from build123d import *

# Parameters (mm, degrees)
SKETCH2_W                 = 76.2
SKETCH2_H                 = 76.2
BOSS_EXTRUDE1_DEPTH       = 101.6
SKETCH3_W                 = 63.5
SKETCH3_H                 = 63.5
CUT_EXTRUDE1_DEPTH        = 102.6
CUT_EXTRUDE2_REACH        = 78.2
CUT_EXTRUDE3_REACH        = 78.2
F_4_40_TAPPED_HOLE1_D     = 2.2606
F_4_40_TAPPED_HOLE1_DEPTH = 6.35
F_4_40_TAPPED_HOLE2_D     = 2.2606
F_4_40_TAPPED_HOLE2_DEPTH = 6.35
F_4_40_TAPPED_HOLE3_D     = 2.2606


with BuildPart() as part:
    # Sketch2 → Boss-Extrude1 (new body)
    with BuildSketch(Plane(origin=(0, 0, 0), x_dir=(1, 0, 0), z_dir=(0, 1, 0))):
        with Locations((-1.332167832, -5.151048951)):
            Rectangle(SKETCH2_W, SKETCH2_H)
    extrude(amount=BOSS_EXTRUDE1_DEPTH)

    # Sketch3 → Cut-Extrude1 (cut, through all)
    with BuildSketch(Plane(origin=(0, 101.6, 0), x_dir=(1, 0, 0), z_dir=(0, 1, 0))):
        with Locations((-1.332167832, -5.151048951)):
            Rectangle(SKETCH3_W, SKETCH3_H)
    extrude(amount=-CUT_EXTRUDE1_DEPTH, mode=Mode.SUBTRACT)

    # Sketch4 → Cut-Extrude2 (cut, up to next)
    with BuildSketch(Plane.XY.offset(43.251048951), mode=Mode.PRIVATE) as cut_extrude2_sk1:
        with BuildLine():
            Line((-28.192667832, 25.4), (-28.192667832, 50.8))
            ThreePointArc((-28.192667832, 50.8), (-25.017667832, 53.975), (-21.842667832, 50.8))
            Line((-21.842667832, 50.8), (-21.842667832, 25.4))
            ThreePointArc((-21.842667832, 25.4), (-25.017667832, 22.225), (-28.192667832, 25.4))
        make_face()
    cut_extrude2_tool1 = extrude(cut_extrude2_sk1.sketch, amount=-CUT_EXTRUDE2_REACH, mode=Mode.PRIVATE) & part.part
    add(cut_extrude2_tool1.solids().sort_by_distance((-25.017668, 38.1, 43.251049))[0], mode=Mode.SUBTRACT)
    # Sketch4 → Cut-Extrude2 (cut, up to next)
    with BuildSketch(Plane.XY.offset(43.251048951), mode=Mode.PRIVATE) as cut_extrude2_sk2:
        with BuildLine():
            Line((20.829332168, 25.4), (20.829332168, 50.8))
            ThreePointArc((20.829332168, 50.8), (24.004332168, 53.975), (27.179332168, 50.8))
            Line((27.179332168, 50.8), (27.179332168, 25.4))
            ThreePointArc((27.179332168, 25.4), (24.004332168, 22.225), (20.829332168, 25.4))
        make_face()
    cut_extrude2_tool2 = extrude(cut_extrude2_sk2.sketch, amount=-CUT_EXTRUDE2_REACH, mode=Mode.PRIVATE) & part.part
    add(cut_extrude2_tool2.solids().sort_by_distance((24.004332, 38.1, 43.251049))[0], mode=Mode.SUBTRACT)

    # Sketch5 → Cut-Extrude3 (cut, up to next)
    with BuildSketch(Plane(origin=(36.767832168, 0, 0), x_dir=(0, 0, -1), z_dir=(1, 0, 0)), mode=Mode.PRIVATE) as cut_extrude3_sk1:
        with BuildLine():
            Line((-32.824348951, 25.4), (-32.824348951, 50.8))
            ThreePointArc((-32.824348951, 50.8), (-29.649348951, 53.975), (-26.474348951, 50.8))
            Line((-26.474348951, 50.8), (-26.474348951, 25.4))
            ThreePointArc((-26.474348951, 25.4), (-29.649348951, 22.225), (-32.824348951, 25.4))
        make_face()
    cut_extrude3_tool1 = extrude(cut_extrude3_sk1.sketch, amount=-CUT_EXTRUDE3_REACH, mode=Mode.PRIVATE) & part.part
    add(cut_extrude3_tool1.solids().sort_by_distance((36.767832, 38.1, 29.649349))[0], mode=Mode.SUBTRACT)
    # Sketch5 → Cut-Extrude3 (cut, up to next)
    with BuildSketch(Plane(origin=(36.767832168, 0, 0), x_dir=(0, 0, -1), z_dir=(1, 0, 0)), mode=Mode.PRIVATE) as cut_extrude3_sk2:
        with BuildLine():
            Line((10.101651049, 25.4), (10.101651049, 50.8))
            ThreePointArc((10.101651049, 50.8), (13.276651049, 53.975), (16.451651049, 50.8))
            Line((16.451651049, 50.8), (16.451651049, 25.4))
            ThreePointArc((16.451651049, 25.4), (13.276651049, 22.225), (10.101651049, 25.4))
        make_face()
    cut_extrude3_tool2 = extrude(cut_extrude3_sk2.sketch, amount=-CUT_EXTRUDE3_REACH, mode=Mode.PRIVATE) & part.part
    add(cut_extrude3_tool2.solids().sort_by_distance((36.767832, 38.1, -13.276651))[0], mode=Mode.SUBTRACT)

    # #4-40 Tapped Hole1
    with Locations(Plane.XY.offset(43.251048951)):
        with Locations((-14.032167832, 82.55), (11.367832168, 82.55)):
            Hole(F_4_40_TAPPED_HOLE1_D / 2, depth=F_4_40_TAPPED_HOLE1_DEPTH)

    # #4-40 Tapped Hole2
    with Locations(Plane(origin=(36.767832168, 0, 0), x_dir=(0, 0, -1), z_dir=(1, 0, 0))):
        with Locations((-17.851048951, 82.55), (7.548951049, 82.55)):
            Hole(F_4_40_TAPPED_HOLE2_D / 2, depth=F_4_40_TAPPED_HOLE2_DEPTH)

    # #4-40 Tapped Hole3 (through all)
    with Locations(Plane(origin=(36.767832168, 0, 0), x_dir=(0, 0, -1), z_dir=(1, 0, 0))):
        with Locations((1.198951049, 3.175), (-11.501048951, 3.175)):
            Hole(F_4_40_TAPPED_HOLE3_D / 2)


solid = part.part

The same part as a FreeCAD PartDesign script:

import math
import FreeCAD as App
import Part
import Sketcher
Q = App.Units.Quantity

doc = App.newDocument("Part")
body = doc.addObject("PartDesign::Body", "Body")

# Sketch on XZ plane
sketch1 = body.newObject("Sketcher::SketchObject", "Sketch")
sketch1.AttachmentSupport = (doc.getObject("XZ_Plane"), [""])
sketch1.MapMode = "FlatFace"
sketch1.addGeometry([
    Part.LineSegment(App.Vector(-39, -33, 0), App.Vector(-39, 43, 0)),
    Part.LineSegment(App.Vector(-39, 43, 0), App.Vector(37, 43, 0)),
    Part.LineSegment(App.Vector(37, 43, 0), App.Vector(37, -33, 0)),
    Part.LineSegment(App.Vector(37, -33, 0), App.Vector(-39, -33, 0)),
], False)
sketch1.addConstraint([
    Sketcher.Constraint("Coincident", 0, 2, 1, 1),
    Sketcher.Constraint("Coincident", 1, 2, 2, 1),
    Sketcher.Constraint("Coincident", 2, 2, 3, 1),
    Sketcher.Constraint("Coincident", 3, 2, 0, 1),
    Sketcher.Constraint("Vertical", 0),
    Sketcher.Constraint("Horizontal", 1),
    Sketcher.Constraint("Vertical", 2),
    Sketcher.Constraint("Horizontal", 3),
    Sketcher.Constraint("Equal", 3, 0),
    Sketcher.Constraint("DistanceX", 1, 1, 1, 2, Q("3 in")),
    Sketcher.Constraint("DistanceY", -1, 1, 0, 2, Q("43.251049 mm")),
    Sketcher.Constraint("DistanceX", 0, 2, -1, 1, Q("39.432168 mm")),
])
pad1 = body.newObject("PartDesign::Pad", "Pad")
pad1.Profile = sketch1
pad1.Length = Q("4 in")
pad1.Reversed = True

# Sketch on XZ plane
sketch2 = body.newObject("Sketcher::SketchObject", "Sketch001")
sketch2.AttachmentSupport = (doc.getObject("XZ_Plane"), [""])
sketch2.MapMode = "FlatFace"
sketch2.AttachmentOffset = App.Placement(App.Vector(0, 0, -4 * 25.4), App.Rotation())
sketch2.addGeometry([
    Part.LineSegment(App.Vector(-33, -27, 0), App.Vector(-33, 37, 0)),
    Part.LineSegment(App.Vector(-33, 37, 0), App.Vector(30, 37, 0)),
    Part.LineSegment(App.Vector(30, 37, 0), App.Vector(30, -27, 0)),
    Part.LineSegment(App.Vector(30, -27, 0), App.Vector(-33, -27, 0)),
], False)
sketch2.addConstraint([
    Sketcher.Constraint("Coincident", 0, 2, 1, 1),
    Sketcher.Constraint("Coincident", 1, 2, 2, 1),
    Sketcher.Constraint("Coincident", 2, 2, 3, 1),
    Sketcher.Constraint("Coincident", 3, 2, 0, 1),
    Sketcher.Constraint("Vertical", 0),
    Sketcher.Constraint("Horizontal", 1),
    Sketcher.Constraint("Vertical", 2),
    Sketcher.Constraint("Horizontal", 3),
    Sketcher.Constraint("Equal", 3, 0),
    Sketcher.Constraint("DistanceX", 1, 1, 1, 2, Q("2.5 in")),
    Sketcher.Constraint("DistanceY", -1, 1, 0, 2, Q("36.901049 mm")),
    Sketcher.Constraint("DistanceX", 0, 2, -1, 1, Q("33.082168 mm")),
])
pocket1 = body.newObject("PartDesign::Pocket", "Pocket")
pocket1.Profile = sketch2
pocket1.Type = "ThroughAll"
pocket1.Reversed = True

# Sketch on XY plane
sketch3 = body.newObject("Sketcher::SketchObject", "Sketch002")
sketch3.AttachmentSupport = (doc.getObject("XY_Plane"), [""])
sketch3.MapMode = "FlatFace"
sketch3.AttachmentOffset = App.Placement(App.Vector(0, 0, 43.251049), App.Rotation())
sketch3.addGeometry([
    Part.LineSegment(App.Vector(-28.2, 50.8, 0), App.Vector(-28.2, 25.4, 0)),
    Part.ArcOfCircle(Part.Circle(App.Vector(-25, 25.4, 0), App.Vector(0, 0, 1), 3.2), math.radians(180), math.radians(360)),
    Part.LineSegment(App.Vector(-21.8, 25.4, 0), App.Vector(-21.8, 50.8, 0)),
    Part.ArcOfCircle(Part.Circle(App.Vector(-25, 50.8, 0), App.Vector(0, 0, 1), 3.2), math.radians(0), math.radians(180)),
], False)
sketch3.addConstraint([
    Sketcher.Constraint("Tangent", 0, 2, 1, 1),
    Sketcher.Constraint("Tangent", 1, 2, 2, 1),
    Sketcher.Constraint("Tangent", 2, 2, 3, 1),
    Sketcher.Constraint("Tangent", 3, 2, 0, 1),
    Sketcher.Constraint("Vertical", 0),
    Sketcher.Constraint("Vertical", 2),
    Sketcher.Constraint("DistanceY", 0, 2, 0, 1, Q("1 in")),
    Sketcher.Constraint("DistanceY", -1, 1, 1, 3, Q("1 in")),
    Sketcher.Constraint("Radius", 1, Q("0.125 in")),
    Sketcher.Constraint("DistanceX", 1, 3, -1, 1, Q("25.017668 mm")),
])
pocket2 = body.newObject("PartDesign::Pocket", "Pocket001")
pocket2.Profile = sketch3
pocket2.Type = "UpToFirst"

# Sketch on XY plane
sketch4 = body.newObject("Sketcher::SketchObject", "Sketch003")
sketch4.AttachmentSupport = (doc.getObject("XY_Plane"), [""])
sketch4.MapMode = "FlatFace"
sketch4.AttachmentOffset = App.Placement(App.Vector(0, 0, 43.251049), App.Rotation())
sketch4.addGeometry([
    Part.LineSegment(App.Vector(20.8, 50.8, 0), App.Vector(20.8, 25.4, 0)),
    Part.ArcOfCircle(Part.Circle(App.Vector(24, 25.4, 0), App.Vector(0, 0, 1), 3.2), math.radians(180), math.radians(360)),
    Part.LineSegment(App.Vector(27.2, 25.4, 0), App.Vector(27.2, 50.8, 0)),
    Part.ArcOfCircle(Part.Circle(App.Vector(24, 50.8, 0), App.Vector(0, 0, 1), 3.2), math.radians(0), math.radians(180)),
], False)
sketch4.addConstraint([
    Sketcher.Constraint("Tangent", 0, 2, 1, 1),
    Sketcher.Constraint("Tangent", 1, 2, 2, 1),
    Sketcher.Constraint("Tangent", 2, 2, 3, 1),
    Sketcher.Constraint("Tangent", 3, 2, 0, 1),
    Sketcher.Constraint("Vertical", 0),
    Sketcher.Constraint("Vertical", 2),
    Sketcher.Constraint("DistanceY", 0, 2, 0, 1, Q("1 in")),
    Sketcher.Constraint("DistanceY", -1, 1, 1, 3, Q("1 in")),
    Sketcher.Constraint("Radius", 1, Q("0.125 in")),
    Sketcher.Constraint("DistanceX", -1, 1, 1, 3, Q("24.004332 mm")),
])
pocket3 = body.newObject("PartDesign::Pocket", "Pocket002")
pocket3.Profile = sketch4
pocket3.Type = "UpToFirst"

# Sketch on YZ plane
sketch5 = body.newObject("Sketcher::SketchObject", "Sketch004")
sketch5.AttachmentSupport = (doc.getObject("YZ_Plane"), [""])
sketch5.MapMode = "FlatFace"
sketch5.AttachmentOffset = App.Placement(App.Vector(0, 0, 36.767832), App.Rotation())
sketch5.addGeometry([
    Part.LineSegment(App.Vector(50.8, 32.8, 0), App.Vector(25.4, 32.8, 0)),
    Part.ArcOfCircle(Part.Circle(App.Vector(25.4, 29.6, 0), App.Vector(0, 0, 1), 3.2), math.radians(90), math.radians(270)),
    Part.LineSegment(App.Vector(25.4, 26.5, 0), App.Vector(50.8, 26.5, 0)),
    Part.ArcOfCircle(Part.Circle(App.Vector(50.8, 29.6, 0), App.Vector(0, 0, 1), 3.2), math.radians(-90), math.radians(90)),
], False)
sketch5.addConstraint([
    Sketcher.Constraint("Tangent", 0, 2, 1, 1),
    Sketcher.Constraint("Tangent", 1, 2, 2, 1),
    Sketcher.Constraint("Tangent", 2, 2, 3, 1),
    Sketcher.Constraint("Tangent", 3, 2, 0, 1),
    Sketcher.Constraint("Horizontal", 0),
    Sketcher.Constraint("Horizontal", 2),
    Sketcher.Constraint("DistanceX", 0, 2, 0, 1, Q("1 in")),
    Sketcher.Constraint("DistanceX", -1, 1, 1, 3, Q("1 in")),
    Sketcher.Constraint("Radius", 1, Q("0.125 in")),
    Sketcher.Constraint("DistanceY", -1, 1, 1, 3, Q("29.649349 mm")),
])
pocket4 = body.newObject("PartDesign::Pocket", "Pocket003")
pocket4.Profile = sketch5
pocket4.Type = "UpToFirst"

# Sketch on YZ plane
sketch6 = body.newObject("Sketcher::SketchObject", "Sketch005")
sketch6.AttachmentSupport = (doc.getObject("YZ_Plane"), [""])
sketch6.MapMode = "FlatFace"
sketch6.AttachmentOffset = App.Placement(App.Vector(0, 0, 36.767832), App.Rotation())
sketch6.addGeometry([
    Part.LineSegment(App.Vector(50.8, -10.1, 0), App.Vector(25.4, -10.1, 0)),
    Part.ArcOfCircle(Part.Circle(App.Vector(25.4, -13.3, 0), App.Vector(0, 0, 1), 3.2), math.radians(90), math.radians(270)),
    Part.LineSegment(App.Vector(25.4, -16.5, 0), App.Vector(50.8, -16.5, 0)),
    Part.ArcOfCircle(Part.Circle(App.Vector(50.8, -13.3, 0), App.Vector(0, 0, 1), 3.2), math.radians(-90), math.radians(90)),
], False)
sketch6.addConstraint([
    Sketcher.Constraint("Tangent", 0, 2, 1, 1),
    Sketcher.Constraint("Tangent", 1, 2, 2, 1),
    Sketcher.Constraint("Tangent", 2, 2, 3, 1),
    Sketcher.Constraint("Tangent", 3, 2, 0, 1),
    Sketcher.Constraint("Horizontal", 0),
    Sketcher.Constraint("Horizontal", 2),
    Sketcher.Constraint("DistanceX", 0, 2, 0, 1, Q("1 in")),
    Sketcher.Constraint("DistanceX", -1, 1, 1, 3, Q("1 in")),
    Sketcher.Constraint("Radius", 1, Q("0.125 in")),
    Sketcher.Constraint("DistanceY", 1, 3, -1, 1, Q("13.276651 mm")),
])
pocket5 = body.newObject("PartDesign::Pocket", "Pocket004")
pocket5.Profile = sketch6
pocket5.Type = "UpToFirst"

# Sketch on XY plane
sketch7 = body.newObject("Sketcher::SketchObject", "Sketch006")
sketch7.AttachmentSupport = (doc.getObject("XY_Plane"), [""])
sketch7.MapMode = "FlatFace"
sketch7.AttachmentOffset = App.Placement(App.Vector(0, 0, 43.251049), App.Rotation())
sketch7.addGeometry([
    Part.Circle(App.Vector(-14, 82.5, 0), App.Vector(0, 0, 1), 1.1),
    Part.Circle(App.Vector(11.4, 82.5, 0), App.Vector(0, 0, 1), 1.1),
], False)
sketch7.addConstraint([
    Sketcher.Constraint("Equal", 0, 1),
    Sketcher.Constraint("Horizontal", 0, 3, 1, 3),
    Sketcher.Constraint("Diameter", 0, Q("0.089 in")),
    Sketcher.Constraint("DistanceX", 0, 3, 1, 3, Q("1 in")),
    Sketcher.Constraint("DistanceY", -1, 1, 0, 3, Q("3.25 in")),
    Sketcher.Constraint("DistanceX", 0, 3, -1, 1, Q("14.032168 mm")),
])
doc.recompute()
hole = body.newObject("PartDesign::Hole", "Hole")
hole.Profile = sketch7
hole.ThreadType = "None"
hole.Diameter = Q("0.089 in")
hole.DepthType = "Dimension"
hole.Depth = Q("0.25 in")
hole.DrillPoint = "Flat"

# Sketch on YZ plane
sketch8 = body.newObject("Sketcher::SketchObject", "Sketch007")
sketch8.AttachmentSupport = (doc.getObject("YZ_Plane"), [""])
sketch8.MapMode = "FlatFace"
sketch8.AttachmentOffset = App.Placement(App.Vector(0, 0, 36.767832), App.Rotation())
sketch8.addGeometry([
    Part.Circle(App.Vector(82.5, 17.9, 0), App.Vector(0, 0, 1), 1.1),
    Part.Circle(App.Vector(82.5, -7.5, 0), App.Vector(0, 0, 1), 1.1),
], False)
sketch8.addConstraint([
    Sketcher.Constraint("Equal", 0, 1),
    Sketcher.Constraint("Vertical", 0, 3, 1, 3),
    Sketcher.Constraint("Diameter", 0, Q("0.089 in")),
    Sketcher.Constraint("DistanceY", 1, 3, 0, 3, Q("1 in")),
    Sketcher.Constraint("DistanceX", -1, 1, 0, 3, Q("3.25 in")),
    Sketcher.Constraint("DistanceY", -1, 1, 0, 3, Q("17.851049 mm")),
])
doc.recompute()
hole2 = body.newObject("PartDesign::Hole", "Hole001")
hole2.Profile = sketch8
hole2.ThreadType = "None"
hole2.Diameter = Q("0.089 in")
hole2.DepthType = "Dimension"
hole2.Depth = Q("0.25 in")
hole2.DrillPoint = "Flat"

# Sketch on YZ plane
sketch9 = body.newObject("Sketcher::SketchObject", "Sketch008")
sketch9.AttachmentSupport = (doc.getObject("YZ_Plane"), [""])
sketch9.MapMode = "FlatFace"
sketch9.AttachmentOffset = App.Placement(App.Vector(0, 0, 36.767832), App.Rotation())
sketch9.addGeometry([
    Part.Circle(App.Vector(3.2, -1.2, 0), App.Vector(0, 0, 1), 1.1),
    Part.Circle(App.Vector(3.2, 11.5, 0), App.Vector(0, 0, 1), 1.1),
], False)
sketch9.addConstraint([
    Sketcher.Constraint("Equal", 0, 1),
    Sketcher.Constraint("Vertical", 0, 3, 1, 3),
    Sketcher.Constraint("Diameter", 0, Q("0.089 in")),
    Sketcher.Constraint("DistanceY", 0, 3, 1, 3, Q("0.5 in")),
    Sketcher.Constraint("DistanceX", -1, 1, 0, 3, Q("0.125 in")),
    Sketcher.Constraint("DistanceY", 0, 3, -1, 1, Q("1.198951 mm")),
])
doc.recompute()
hole3 = body.newObject("PartDesign::Hole", "Hole002")
hole3.Profile = sketch9
hole3.ThreadType = "None"
hole3.Diameter = Q("0.089 in")
hole3.DepthType = "ThroughAll"

doc.recompute()
